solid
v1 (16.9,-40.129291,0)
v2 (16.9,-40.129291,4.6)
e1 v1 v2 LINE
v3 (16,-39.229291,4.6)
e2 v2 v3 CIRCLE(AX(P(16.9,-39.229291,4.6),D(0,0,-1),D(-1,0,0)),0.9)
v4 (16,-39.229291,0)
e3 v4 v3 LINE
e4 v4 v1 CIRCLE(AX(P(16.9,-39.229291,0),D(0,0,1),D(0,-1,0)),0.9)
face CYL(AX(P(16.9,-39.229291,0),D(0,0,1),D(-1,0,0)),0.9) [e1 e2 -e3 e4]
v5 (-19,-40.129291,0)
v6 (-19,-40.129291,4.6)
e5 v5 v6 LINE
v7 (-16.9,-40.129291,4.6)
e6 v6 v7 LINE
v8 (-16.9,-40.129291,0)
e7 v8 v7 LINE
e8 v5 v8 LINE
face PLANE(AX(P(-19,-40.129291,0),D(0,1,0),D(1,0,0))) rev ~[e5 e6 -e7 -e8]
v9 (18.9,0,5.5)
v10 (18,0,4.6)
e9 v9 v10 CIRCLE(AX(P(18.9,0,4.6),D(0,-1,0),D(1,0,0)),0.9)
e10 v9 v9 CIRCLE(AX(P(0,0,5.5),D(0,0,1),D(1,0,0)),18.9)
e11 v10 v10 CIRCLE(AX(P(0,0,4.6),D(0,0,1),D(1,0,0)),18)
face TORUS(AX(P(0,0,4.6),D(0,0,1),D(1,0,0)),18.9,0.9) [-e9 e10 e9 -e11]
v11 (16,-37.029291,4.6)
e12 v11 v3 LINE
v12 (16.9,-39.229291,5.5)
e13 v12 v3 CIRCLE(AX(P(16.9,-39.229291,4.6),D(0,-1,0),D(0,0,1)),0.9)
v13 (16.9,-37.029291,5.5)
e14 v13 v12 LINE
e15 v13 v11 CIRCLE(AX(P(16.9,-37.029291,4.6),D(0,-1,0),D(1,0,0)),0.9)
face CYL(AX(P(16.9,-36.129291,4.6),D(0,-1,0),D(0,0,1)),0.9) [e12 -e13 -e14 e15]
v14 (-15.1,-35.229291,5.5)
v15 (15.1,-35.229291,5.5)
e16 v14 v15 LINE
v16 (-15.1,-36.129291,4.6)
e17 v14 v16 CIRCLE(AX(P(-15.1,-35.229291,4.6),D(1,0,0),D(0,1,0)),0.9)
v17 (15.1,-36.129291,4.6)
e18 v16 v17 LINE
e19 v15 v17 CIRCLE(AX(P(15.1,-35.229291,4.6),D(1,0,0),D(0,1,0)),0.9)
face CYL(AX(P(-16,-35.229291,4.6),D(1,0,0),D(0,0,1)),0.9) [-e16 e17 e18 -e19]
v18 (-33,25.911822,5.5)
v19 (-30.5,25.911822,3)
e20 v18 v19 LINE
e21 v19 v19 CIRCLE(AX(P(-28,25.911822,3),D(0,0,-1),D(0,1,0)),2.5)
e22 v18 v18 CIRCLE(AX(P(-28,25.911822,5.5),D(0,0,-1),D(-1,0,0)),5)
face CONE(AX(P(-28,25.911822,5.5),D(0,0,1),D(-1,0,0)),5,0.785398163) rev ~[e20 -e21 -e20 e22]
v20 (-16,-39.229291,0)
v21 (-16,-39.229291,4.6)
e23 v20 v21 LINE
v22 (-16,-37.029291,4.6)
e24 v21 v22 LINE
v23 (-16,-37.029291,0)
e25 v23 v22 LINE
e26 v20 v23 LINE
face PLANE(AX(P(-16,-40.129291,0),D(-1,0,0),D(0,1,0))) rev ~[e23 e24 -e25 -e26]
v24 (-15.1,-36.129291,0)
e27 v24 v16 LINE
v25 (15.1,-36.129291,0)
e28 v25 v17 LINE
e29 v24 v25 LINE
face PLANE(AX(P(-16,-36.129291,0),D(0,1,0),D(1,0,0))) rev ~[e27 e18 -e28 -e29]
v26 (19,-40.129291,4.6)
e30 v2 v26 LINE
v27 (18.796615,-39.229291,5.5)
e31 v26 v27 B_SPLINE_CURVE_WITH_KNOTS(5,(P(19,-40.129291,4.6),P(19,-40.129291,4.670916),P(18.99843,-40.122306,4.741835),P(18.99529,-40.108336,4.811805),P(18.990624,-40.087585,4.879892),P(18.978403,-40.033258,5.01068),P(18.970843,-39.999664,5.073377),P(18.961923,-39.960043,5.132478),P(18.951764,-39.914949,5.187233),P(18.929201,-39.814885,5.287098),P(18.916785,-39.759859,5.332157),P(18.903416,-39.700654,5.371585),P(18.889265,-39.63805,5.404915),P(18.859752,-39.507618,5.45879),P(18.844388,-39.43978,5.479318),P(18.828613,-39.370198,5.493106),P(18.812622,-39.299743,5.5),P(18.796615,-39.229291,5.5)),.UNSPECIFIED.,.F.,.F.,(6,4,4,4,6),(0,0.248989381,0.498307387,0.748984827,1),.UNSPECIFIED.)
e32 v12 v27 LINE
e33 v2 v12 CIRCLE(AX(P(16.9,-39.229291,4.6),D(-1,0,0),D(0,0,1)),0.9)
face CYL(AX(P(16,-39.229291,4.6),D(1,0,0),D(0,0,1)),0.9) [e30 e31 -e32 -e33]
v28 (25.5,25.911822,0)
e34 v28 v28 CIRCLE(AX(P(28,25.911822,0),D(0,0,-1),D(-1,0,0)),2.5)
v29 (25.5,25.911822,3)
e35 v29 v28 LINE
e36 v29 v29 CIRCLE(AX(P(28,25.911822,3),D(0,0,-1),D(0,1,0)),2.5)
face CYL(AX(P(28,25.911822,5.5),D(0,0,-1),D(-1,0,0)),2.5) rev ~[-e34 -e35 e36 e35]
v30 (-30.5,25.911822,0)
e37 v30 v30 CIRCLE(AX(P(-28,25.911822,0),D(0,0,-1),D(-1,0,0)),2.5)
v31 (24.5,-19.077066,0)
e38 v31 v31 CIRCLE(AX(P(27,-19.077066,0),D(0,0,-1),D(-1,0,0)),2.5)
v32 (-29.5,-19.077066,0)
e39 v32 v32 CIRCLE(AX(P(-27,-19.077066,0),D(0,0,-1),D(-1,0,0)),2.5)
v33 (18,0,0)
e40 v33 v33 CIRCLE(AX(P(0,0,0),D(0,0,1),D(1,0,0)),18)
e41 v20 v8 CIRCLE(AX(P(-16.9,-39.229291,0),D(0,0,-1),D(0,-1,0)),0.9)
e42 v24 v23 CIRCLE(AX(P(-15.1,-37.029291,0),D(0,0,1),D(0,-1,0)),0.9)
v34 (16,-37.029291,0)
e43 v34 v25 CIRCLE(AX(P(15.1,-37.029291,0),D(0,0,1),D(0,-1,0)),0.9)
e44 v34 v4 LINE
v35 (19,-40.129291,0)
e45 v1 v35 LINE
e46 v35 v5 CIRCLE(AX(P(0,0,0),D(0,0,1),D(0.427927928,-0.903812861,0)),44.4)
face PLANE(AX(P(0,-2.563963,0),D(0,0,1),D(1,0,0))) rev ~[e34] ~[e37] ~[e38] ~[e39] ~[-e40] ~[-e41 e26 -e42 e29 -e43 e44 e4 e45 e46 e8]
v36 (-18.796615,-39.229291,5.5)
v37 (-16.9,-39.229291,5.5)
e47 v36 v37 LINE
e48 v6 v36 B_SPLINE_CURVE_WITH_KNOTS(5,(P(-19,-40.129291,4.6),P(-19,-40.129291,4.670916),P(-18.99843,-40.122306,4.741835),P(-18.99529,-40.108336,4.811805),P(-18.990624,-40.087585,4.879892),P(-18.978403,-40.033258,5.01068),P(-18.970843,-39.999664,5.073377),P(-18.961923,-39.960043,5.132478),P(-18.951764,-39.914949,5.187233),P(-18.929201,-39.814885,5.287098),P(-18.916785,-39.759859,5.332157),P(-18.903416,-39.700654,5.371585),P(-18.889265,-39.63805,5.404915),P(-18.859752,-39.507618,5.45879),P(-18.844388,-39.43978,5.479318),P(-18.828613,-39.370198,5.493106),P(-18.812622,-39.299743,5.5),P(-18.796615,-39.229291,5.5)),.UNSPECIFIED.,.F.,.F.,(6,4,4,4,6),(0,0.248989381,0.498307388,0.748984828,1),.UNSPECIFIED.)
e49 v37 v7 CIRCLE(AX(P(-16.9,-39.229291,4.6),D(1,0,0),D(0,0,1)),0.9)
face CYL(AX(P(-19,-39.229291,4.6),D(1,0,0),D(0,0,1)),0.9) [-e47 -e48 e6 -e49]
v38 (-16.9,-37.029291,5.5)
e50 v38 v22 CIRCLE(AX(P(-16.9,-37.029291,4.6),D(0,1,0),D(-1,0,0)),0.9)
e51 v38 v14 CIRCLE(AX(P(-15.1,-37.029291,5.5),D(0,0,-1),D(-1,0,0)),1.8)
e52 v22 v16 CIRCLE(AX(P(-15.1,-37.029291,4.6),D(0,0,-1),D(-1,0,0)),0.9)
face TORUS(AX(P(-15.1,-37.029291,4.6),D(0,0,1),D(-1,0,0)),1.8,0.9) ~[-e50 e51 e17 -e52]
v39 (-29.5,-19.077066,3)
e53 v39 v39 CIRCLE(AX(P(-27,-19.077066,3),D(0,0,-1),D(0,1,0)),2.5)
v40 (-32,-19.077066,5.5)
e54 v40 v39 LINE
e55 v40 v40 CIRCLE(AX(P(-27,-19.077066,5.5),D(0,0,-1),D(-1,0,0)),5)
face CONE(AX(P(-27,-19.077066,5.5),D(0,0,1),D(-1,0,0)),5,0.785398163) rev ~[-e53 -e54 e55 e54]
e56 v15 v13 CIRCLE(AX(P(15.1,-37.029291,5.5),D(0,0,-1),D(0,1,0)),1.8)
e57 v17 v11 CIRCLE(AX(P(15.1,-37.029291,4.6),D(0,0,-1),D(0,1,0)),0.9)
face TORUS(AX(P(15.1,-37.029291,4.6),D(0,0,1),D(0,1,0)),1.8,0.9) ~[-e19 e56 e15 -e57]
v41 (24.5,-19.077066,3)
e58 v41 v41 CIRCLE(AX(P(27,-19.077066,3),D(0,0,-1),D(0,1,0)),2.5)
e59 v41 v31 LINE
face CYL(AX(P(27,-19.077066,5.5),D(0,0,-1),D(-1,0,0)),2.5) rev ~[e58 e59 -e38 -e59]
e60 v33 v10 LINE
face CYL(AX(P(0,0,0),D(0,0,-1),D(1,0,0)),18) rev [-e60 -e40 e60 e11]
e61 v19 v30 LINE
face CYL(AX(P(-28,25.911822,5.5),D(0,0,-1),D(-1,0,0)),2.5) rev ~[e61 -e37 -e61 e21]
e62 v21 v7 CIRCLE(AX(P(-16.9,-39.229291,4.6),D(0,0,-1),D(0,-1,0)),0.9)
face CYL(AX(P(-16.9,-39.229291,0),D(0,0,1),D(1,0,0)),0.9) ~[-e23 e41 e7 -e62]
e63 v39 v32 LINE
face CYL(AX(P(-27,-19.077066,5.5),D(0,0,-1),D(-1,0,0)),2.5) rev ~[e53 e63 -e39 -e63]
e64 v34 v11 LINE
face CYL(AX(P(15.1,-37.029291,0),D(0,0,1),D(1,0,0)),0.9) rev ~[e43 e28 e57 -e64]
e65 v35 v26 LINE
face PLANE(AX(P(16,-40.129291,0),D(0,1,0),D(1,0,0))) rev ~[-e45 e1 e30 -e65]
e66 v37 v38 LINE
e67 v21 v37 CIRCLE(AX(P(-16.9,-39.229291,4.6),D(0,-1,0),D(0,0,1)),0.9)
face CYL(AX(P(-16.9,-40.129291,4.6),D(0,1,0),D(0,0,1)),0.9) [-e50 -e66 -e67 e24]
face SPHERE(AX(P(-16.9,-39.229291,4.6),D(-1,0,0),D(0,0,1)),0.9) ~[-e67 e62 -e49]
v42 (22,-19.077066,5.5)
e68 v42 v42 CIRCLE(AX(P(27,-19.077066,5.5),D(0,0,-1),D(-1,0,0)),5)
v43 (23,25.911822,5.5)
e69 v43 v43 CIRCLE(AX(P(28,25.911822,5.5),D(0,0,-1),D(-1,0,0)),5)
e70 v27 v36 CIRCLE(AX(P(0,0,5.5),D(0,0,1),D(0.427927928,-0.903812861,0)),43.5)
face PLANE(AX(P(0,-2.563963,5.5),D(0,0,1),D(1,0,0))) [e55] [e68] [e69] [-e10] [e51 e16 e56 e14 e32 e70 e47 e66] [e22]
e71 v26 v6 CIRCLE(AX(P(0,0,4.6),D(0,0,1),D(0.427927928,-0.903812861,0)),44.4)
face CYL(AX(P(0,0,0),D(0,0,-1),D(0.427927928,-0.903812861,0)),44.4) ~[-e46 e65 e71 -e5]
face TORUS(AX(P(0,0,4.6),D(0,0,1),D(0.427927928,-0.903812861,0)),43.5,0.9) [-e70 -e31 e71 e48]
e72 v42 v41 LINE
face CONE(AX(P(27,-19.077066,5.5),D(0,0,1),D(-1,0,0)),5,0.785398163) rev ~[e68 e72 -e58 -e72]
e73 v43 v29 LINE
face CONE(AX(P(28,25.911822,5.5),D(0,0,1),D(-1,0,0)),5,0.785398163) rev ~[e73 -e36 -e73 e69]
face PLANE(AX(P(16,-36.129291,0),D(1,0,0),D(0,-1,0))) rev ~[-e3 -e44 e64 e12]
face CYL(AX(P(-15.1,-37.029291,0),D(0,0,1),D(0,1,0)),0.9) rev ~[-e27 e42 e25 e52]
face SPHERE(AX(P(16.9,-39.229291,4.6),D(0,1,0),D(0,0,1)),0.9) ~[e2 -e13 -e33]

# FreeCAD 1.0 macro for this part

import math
import FreeCAD as App
import Part
import Sketcher
from FreeCAD import Vector


def edges_at(feature, points):
    """Names of the edges that pass closest to the given points."""
    edges = feature.Shape.Edges
    near = lambda p: min(range(len(edges)), key=lambda i: edges[i].distToShape(Part.Vertex(*p))[0])
    return sorted({f"Edge{near(p) + 1}" for p in points})

doc = App.newDocument("Part")
body = doc.addObject("PartDesign::Body", "Body")

sketch1 = body.newObject("Sketcher::SketchObject", "Sketch")
sketch1.AttachmentSupport = (doc.getObject("XY_Plane"), [""])
sketch1.MapMode = "FlatFace"
sketch1.addGeometry([
    Part.ArcOfCircle(Part.Circle(Vector(0, 0, 0), Vector(0, 0, 1), 44.4), math.radians(-64.663867), math.radians(244.663867)),
    Part.LineSegment(Vector(-19, -40.129291, 0), Vector(-16, -40.129291, 0)),
    Part.LineSegment(Vector(-16, -40.129291, 0), Vector(-16, -36.129291, 0)),
    Part.LineSegment(Vector(-16, -36.129291, 0), Vector(16, -36.129291, 0)),
    Part.LineSegment(Vector(16, -36.129291, 0), Vector(16, -40.129291, 0)),
    Part.LineSegment(Vector(16, -40.129291, 0), Vector(19, -40.129291, 0)),
    Part.Circle(Vector(0, 0, 0), Vector(0, 0, 1), 18),
], False)
sketch1.addConstraint([
    Sketcher.Constraint("Coincident", 0, 2, 1, 1),
    Sketcher.Constraint("Coincident", 1, 2, 2, 1),
    Sketcher.Constraint("Coincident", 2, 2, 3, 1),
    Sketcher.Constraint("Coincident", 3, 2, 4, 1),
    Sketcher.Constraint("Coincident", 4, 2, 5, 1),
    Sketcher.Constraint("Coincident", 5, 2, 0, 1),
    Sketcher.Constraint("Horizontal", 1),
    Sketcher.Constraint("Vertical", 2),
    Sketcher.Constraint("Horizontal", 3),
    Sketcher.Constraint("Vertical", 4),
    Sketcher.Constraint("Horizontal", 5),
    Sketcher.Constraint("Coincident", 0, 3, -1, 1),
    Sketcher.Constraint("Coincident", 6, 3, -1, 1),
    Sketcher.Constraint("Symmetric", 1, 2, 4, 2, -2),
    Sketcher.Constraint("Diameter", 6, 36.0),
    Sketcher.Constraint("Radius", 0, 44.4),
    Sketcher.Constraint("DistanceX", 1, 1, 1, 2, 3.0),
    Sketcher.Constraint("DistanceX", 3, 1, 3, 2, 32.0),
    Sketcher.Constraint("DistanceY", 2, 1, 2, 2, 4.0),
])
pad1 = body.newObject("PartDesign::Pad", "Pad")
pad1.Profile = sketch1
pad1.Length = 5.5

sketch2 = body.newObject("Sketcher::SketchObject", "Sketch001")
sketch2.AttachmentSupport = (doc.getObject("XY_Plane"), [""])
sketch2.MapMode = "FlatFace"
sketch2.AttachmentOffset = App.Placement(Vector(0, 0, 5.5), App.Rotation())
sketch2.addGeometry([
    Part.Circle(Vector(28, 25.911822, 0), Vector(0, 0, 1), 2.5),
    Part.Circle(Vector(-28, 25.911822, 0), Vector(0, 0, 1), 2.5),
    Part.Circle(Vector(-27, -19.077066, 0), Vector(0, 0, 1), 2.5),
    Part.Circle(Vector(27, -19.077066, 0), Vector(0, 0, 1), 2.5),
], False)
sketch2.addConstraint([
    Sketcher.Constraint("Equal", 0, 1),
    Sketcher.Constraint("Equal", 1, 2),
    Sketcher.Constraint("Equal", 2, 3),
    Sketcher.Constraint("Symmetric", 0, 3, 1, 3, -2),
    Sketcher.Constraint("Symmetric", 2, 3, 3, 3, -2),
    Sketcher.Constraint("Diameter", 0, 5.0),
    Sketcher.Constraint("DistanceX", -1, 1, 0, 3, 28.0),
    Sketcher.Constraint("DistanceX", 2, 3, -1, 1, 27.0),
    Sketcher.Constraint("DistanceY", 2, 3, 1, 3, 44.988888),
    Sketcher.Constraint("DistanceY", -1, 1, 0, 3, 25.911822),
])
doc.recompute()
hole = body.newObject("PartDesign::Hole", "Hole")
hole.Profile = sketch2
hole.ThreadType = "None"
hole.Diameter = 5
hole.DepthType = "ThroughAll"
hole.HoleCutType = "Countersink"
hole.HoleCutDiameter = 10
hole.HoleCutCountersinkAngle = 90
doc.recompute()

fillet = body.newObject("PartDesign::Fillet", "Fillet")
fillet.Base = (hole, edges_at(hole, [
    (0, 44.4, 5.5),
    (-18, 0, 5.5),
    (-17.5, -40.129, 5.5),
    (-16, -38.129, 5.5),
    (0, -36.129, 5.5),
    (16, -38.129, 5.5),
    (17.5, -40.129, 5.5),
    (-16, -40.129, 2.75),
    (16, -40.129, 2.75),
    (-16, -36.129, 2.75),
    (16, -36.129, 2.75),
]))
fillet.Radius = 0.9

doc.recompute()
